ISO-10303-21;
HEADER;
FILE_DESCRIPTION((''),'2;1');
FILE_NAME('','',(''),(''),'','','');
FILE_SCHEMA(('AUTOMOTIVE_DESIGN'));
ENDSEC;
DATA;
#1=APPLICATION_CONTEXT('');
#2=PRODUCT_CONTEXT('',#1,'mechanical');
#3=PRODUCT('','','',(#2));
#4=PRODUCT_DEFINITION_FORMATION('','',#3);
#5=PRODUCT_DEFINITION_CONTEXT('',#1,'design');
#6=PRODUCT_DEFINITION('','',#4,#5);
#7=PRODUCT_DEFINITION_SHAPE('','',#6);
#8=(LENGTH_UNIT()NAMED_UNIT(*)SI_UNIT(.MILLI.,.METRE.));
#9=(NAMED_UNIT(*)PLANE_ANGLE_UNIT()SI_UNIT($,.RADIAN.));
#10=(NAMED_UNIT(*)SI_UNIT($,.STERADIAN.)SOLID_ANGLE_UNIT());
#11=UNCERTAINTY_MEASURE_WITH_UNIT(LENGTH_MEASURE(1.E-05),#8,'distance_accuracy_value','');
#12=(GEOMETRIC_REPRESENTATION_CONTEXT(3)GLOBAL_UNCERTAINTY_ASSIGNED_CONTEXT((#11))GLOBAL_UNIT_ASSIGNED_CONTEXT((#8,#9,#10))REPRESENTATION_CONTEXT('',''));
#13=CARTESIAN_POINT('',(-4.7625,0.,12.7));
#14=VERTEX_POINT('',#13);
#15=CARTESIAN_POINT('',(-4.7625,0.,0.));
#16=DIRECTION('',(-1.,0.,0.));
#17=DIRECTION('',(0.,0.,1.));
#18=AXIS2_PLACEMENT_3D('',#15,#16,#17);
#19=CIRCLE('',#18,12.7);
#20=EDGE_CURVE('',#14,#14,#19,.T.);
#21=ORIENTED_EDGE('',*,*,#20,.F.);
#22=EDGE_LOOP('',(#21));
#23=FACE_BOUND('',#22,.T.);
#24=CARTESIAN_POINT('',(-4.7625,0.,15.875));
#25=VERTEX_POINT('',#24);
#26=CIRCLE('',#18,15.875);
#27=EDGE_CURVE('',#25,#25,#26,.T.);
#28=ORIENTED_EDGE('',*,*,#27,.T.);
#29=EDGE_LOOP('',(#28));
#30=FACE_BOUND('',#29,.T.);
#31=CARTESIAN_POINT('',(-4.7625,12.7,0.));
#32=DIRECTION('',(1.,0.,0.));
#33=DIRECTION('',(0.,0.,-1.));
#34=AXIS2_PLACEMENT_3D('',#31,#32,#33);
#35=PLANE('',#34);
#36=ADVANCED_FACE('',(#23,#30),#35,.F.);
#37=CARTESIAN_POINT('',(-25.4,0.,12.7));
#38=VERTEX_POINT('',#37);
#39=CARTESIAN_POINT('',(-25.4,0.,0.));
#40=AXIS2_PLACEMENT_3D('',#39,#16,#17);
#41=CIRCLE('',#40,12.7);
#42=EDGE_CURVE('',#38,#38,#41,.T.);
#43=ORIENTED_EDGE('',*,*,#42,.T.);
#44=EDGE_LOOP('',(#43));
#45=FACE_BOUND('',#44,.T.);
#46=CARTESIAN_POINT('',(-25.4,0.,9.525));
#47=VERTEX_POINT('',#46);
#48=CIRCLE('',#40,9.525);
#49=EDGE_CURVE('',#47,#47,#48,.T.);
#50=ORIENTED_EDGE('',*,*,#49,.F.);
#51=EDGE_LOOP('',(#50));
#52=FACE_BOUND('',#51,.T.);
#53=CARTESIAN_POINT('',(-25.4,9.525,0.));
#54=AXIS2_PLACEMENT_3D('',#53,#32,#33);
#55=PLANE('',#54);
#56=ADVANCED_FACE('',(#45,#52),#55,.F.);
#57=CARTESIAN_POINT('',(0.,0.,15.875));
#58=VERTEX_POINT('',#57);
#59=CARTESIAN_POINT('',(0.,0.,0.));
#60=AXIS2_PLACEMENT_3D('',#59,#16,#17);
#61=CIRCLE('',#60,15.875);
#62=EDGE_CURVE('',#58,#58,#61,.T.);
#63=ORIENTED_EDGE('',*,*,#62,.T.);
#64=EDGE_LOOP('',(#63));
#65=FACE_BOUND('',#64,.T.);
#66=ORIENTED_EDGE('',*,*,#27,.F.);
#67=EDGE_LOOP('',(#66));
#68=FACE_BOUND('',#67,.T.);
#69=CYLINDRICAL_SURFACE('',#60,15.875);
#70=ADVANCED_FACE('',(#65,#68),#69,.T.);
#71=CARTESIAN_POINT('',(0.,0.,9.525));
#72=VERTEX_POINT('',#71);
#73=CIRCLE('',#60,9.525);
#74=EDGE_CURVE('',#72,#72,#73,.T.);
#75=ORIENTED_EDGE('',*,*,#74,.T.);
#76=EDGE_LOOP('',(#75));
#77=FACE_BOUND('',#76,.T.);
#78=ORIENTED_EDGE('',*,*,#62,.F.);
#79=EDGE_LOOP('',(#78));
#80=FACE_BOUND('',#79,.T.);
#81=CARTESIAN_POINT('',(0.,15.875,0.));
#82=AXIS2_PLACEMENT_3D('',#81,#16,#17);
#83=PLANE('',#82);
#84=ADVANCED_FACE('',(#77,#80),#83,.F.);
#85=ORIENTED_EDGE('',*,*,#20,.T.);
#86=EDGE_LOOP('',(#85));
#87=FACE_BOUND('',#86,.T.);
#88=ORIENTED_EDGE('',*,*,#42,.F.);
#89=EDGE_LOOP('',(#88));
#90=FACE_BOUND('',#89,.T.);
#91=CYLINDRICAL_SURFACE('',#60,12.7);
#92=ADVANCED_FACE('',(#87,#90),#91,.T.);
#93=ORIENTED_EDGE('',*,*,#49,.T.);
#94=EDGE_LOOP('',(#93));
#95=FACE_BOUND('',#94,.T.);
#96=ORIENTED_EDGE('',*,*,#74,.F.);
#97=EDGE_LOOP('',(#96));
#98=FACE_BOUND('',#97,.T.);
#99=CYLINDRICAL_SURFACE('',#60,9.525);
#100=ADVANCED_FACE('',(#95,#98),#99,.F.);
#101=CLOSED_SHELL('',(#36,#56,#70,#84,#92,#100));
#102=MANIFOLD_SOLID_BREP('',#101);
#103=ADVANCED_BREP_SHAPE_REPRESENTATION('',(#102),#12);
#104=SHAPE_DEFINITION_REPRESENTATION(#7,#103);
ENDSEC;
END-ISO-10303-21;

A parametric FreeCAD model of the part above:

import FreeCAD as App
import Part
import Sketcher
from FreeCAD import Vector
Q = App.Units.Quantity

doc = App.newDocument("Part")
params = doc.addObject("Spreadsheet::Sheet", "Params")
for row, (alias, value) in enumerate([
    ("sketch1_width", "1 in"),
    ("sketch1_height", "0.25 in"),
    ("sketch1_width2", "0.8125 in"),
    ("revolution_angle", "360 deg"),
], start=1):
    params.set(f"A{row}", alias)
    params.set(f"B{row}", "=" + value)
    params.setAlias(f"B{row}", alias)

body = doc.addObject("PartDesign::Body", "Body")

sketch1 = body.newObject("Sketcher::SketchObject", "Sketch")
sketch1.AttachmentSupport = (doc.getObject("XY_Plane"), [""])
sketch1.MapMode = "FlatFace"
sketch1.addGeometry([
    Part.LineSegment(Vector(-4.7625, 12.7, 0), Vector(-25.4, 12.7, 0)),
    Part.LineSegment(Vector(-25.4, 12.7, 0), Vector(-25.4, 9.525, 0)),
    Part.LineSegment(Vector(-25.4, 9.525, 0), Vector(0, 9.525, 0)),
    Part.LineSegment(Vector(0, 9.525, 0), Vector(0, 15.875, 0)),
    Part.LineSegment(Vector(0, 15.875, 0), Vector(-4.7625, 15.875, 0)),
    Part.LineSegment(Vector(-4.7625, 15.875, 0), Vector(-4.7625, 12.7, 0)),
], False)
sketch1.addConstraint([
    Sketcher.Constraint("Coincident", 0, 2, 1, 1),
    Sketcher.Constraint("Coincident", 1, 2, 2, 1),
    Sketcher.Constraint("Coincident", 2, 2, 3, 1),
    Sketcher.Constraint("Coincident", 3, 2, 4, 1),
    Sketcher.Constraint("Coincident", 4, 2, 5, 1),
    Sketcher.Constraint("Coincident", 5, 2, 0, 1),
    Sketcher.Constraint("Horizontal", 0),
    Sketcher.Constraint("Vertical", 1),
    Sketcher.Constraint("Horizontal", 2),
    Sketcher.Constraint("Vertical", 3),
    Sketcher.Constraint("Horizontal", 4),
    Sketcher.Constraint("Vertical", 5),
    Sketcher.Constraint("PointOnObject", 2, 2, -2),
    Sketcher.Constraint("Equal", 1, 5),
    Sketcher.Constraint("DistanceX", 2, 1, 2, 2, Q("1 in")),
    Sketcher.Constraint("DistanceY", 3, 1, 3, 2, Q("0.25 in")),
    Sketcher.Constraint("DistanceY", -1, 1, 0, 2, Q("0.5 in")),
    Sketcher.Constraint("DistanceX", 0, 2, 0, 1, Q("0.8125 in")),
])
sketch1.setExpression("Constraints[14]", "Params.sketch1_width")
sketch1.setExpression("Constraints[15]", "Params.sketch1_height")
sketch1.setExpression("Constraints[17]", "Params.sketch1_width2")
revolution = body.newObject("PartDesign::Revolution", "Revolution")
revolution.Profile = sketch1
revolution.ReferenceAxis = (sketch1, ["H_Axis"])
revolution.setExpression("Angle", "Params.revolution_angle")

doc.recompute()
